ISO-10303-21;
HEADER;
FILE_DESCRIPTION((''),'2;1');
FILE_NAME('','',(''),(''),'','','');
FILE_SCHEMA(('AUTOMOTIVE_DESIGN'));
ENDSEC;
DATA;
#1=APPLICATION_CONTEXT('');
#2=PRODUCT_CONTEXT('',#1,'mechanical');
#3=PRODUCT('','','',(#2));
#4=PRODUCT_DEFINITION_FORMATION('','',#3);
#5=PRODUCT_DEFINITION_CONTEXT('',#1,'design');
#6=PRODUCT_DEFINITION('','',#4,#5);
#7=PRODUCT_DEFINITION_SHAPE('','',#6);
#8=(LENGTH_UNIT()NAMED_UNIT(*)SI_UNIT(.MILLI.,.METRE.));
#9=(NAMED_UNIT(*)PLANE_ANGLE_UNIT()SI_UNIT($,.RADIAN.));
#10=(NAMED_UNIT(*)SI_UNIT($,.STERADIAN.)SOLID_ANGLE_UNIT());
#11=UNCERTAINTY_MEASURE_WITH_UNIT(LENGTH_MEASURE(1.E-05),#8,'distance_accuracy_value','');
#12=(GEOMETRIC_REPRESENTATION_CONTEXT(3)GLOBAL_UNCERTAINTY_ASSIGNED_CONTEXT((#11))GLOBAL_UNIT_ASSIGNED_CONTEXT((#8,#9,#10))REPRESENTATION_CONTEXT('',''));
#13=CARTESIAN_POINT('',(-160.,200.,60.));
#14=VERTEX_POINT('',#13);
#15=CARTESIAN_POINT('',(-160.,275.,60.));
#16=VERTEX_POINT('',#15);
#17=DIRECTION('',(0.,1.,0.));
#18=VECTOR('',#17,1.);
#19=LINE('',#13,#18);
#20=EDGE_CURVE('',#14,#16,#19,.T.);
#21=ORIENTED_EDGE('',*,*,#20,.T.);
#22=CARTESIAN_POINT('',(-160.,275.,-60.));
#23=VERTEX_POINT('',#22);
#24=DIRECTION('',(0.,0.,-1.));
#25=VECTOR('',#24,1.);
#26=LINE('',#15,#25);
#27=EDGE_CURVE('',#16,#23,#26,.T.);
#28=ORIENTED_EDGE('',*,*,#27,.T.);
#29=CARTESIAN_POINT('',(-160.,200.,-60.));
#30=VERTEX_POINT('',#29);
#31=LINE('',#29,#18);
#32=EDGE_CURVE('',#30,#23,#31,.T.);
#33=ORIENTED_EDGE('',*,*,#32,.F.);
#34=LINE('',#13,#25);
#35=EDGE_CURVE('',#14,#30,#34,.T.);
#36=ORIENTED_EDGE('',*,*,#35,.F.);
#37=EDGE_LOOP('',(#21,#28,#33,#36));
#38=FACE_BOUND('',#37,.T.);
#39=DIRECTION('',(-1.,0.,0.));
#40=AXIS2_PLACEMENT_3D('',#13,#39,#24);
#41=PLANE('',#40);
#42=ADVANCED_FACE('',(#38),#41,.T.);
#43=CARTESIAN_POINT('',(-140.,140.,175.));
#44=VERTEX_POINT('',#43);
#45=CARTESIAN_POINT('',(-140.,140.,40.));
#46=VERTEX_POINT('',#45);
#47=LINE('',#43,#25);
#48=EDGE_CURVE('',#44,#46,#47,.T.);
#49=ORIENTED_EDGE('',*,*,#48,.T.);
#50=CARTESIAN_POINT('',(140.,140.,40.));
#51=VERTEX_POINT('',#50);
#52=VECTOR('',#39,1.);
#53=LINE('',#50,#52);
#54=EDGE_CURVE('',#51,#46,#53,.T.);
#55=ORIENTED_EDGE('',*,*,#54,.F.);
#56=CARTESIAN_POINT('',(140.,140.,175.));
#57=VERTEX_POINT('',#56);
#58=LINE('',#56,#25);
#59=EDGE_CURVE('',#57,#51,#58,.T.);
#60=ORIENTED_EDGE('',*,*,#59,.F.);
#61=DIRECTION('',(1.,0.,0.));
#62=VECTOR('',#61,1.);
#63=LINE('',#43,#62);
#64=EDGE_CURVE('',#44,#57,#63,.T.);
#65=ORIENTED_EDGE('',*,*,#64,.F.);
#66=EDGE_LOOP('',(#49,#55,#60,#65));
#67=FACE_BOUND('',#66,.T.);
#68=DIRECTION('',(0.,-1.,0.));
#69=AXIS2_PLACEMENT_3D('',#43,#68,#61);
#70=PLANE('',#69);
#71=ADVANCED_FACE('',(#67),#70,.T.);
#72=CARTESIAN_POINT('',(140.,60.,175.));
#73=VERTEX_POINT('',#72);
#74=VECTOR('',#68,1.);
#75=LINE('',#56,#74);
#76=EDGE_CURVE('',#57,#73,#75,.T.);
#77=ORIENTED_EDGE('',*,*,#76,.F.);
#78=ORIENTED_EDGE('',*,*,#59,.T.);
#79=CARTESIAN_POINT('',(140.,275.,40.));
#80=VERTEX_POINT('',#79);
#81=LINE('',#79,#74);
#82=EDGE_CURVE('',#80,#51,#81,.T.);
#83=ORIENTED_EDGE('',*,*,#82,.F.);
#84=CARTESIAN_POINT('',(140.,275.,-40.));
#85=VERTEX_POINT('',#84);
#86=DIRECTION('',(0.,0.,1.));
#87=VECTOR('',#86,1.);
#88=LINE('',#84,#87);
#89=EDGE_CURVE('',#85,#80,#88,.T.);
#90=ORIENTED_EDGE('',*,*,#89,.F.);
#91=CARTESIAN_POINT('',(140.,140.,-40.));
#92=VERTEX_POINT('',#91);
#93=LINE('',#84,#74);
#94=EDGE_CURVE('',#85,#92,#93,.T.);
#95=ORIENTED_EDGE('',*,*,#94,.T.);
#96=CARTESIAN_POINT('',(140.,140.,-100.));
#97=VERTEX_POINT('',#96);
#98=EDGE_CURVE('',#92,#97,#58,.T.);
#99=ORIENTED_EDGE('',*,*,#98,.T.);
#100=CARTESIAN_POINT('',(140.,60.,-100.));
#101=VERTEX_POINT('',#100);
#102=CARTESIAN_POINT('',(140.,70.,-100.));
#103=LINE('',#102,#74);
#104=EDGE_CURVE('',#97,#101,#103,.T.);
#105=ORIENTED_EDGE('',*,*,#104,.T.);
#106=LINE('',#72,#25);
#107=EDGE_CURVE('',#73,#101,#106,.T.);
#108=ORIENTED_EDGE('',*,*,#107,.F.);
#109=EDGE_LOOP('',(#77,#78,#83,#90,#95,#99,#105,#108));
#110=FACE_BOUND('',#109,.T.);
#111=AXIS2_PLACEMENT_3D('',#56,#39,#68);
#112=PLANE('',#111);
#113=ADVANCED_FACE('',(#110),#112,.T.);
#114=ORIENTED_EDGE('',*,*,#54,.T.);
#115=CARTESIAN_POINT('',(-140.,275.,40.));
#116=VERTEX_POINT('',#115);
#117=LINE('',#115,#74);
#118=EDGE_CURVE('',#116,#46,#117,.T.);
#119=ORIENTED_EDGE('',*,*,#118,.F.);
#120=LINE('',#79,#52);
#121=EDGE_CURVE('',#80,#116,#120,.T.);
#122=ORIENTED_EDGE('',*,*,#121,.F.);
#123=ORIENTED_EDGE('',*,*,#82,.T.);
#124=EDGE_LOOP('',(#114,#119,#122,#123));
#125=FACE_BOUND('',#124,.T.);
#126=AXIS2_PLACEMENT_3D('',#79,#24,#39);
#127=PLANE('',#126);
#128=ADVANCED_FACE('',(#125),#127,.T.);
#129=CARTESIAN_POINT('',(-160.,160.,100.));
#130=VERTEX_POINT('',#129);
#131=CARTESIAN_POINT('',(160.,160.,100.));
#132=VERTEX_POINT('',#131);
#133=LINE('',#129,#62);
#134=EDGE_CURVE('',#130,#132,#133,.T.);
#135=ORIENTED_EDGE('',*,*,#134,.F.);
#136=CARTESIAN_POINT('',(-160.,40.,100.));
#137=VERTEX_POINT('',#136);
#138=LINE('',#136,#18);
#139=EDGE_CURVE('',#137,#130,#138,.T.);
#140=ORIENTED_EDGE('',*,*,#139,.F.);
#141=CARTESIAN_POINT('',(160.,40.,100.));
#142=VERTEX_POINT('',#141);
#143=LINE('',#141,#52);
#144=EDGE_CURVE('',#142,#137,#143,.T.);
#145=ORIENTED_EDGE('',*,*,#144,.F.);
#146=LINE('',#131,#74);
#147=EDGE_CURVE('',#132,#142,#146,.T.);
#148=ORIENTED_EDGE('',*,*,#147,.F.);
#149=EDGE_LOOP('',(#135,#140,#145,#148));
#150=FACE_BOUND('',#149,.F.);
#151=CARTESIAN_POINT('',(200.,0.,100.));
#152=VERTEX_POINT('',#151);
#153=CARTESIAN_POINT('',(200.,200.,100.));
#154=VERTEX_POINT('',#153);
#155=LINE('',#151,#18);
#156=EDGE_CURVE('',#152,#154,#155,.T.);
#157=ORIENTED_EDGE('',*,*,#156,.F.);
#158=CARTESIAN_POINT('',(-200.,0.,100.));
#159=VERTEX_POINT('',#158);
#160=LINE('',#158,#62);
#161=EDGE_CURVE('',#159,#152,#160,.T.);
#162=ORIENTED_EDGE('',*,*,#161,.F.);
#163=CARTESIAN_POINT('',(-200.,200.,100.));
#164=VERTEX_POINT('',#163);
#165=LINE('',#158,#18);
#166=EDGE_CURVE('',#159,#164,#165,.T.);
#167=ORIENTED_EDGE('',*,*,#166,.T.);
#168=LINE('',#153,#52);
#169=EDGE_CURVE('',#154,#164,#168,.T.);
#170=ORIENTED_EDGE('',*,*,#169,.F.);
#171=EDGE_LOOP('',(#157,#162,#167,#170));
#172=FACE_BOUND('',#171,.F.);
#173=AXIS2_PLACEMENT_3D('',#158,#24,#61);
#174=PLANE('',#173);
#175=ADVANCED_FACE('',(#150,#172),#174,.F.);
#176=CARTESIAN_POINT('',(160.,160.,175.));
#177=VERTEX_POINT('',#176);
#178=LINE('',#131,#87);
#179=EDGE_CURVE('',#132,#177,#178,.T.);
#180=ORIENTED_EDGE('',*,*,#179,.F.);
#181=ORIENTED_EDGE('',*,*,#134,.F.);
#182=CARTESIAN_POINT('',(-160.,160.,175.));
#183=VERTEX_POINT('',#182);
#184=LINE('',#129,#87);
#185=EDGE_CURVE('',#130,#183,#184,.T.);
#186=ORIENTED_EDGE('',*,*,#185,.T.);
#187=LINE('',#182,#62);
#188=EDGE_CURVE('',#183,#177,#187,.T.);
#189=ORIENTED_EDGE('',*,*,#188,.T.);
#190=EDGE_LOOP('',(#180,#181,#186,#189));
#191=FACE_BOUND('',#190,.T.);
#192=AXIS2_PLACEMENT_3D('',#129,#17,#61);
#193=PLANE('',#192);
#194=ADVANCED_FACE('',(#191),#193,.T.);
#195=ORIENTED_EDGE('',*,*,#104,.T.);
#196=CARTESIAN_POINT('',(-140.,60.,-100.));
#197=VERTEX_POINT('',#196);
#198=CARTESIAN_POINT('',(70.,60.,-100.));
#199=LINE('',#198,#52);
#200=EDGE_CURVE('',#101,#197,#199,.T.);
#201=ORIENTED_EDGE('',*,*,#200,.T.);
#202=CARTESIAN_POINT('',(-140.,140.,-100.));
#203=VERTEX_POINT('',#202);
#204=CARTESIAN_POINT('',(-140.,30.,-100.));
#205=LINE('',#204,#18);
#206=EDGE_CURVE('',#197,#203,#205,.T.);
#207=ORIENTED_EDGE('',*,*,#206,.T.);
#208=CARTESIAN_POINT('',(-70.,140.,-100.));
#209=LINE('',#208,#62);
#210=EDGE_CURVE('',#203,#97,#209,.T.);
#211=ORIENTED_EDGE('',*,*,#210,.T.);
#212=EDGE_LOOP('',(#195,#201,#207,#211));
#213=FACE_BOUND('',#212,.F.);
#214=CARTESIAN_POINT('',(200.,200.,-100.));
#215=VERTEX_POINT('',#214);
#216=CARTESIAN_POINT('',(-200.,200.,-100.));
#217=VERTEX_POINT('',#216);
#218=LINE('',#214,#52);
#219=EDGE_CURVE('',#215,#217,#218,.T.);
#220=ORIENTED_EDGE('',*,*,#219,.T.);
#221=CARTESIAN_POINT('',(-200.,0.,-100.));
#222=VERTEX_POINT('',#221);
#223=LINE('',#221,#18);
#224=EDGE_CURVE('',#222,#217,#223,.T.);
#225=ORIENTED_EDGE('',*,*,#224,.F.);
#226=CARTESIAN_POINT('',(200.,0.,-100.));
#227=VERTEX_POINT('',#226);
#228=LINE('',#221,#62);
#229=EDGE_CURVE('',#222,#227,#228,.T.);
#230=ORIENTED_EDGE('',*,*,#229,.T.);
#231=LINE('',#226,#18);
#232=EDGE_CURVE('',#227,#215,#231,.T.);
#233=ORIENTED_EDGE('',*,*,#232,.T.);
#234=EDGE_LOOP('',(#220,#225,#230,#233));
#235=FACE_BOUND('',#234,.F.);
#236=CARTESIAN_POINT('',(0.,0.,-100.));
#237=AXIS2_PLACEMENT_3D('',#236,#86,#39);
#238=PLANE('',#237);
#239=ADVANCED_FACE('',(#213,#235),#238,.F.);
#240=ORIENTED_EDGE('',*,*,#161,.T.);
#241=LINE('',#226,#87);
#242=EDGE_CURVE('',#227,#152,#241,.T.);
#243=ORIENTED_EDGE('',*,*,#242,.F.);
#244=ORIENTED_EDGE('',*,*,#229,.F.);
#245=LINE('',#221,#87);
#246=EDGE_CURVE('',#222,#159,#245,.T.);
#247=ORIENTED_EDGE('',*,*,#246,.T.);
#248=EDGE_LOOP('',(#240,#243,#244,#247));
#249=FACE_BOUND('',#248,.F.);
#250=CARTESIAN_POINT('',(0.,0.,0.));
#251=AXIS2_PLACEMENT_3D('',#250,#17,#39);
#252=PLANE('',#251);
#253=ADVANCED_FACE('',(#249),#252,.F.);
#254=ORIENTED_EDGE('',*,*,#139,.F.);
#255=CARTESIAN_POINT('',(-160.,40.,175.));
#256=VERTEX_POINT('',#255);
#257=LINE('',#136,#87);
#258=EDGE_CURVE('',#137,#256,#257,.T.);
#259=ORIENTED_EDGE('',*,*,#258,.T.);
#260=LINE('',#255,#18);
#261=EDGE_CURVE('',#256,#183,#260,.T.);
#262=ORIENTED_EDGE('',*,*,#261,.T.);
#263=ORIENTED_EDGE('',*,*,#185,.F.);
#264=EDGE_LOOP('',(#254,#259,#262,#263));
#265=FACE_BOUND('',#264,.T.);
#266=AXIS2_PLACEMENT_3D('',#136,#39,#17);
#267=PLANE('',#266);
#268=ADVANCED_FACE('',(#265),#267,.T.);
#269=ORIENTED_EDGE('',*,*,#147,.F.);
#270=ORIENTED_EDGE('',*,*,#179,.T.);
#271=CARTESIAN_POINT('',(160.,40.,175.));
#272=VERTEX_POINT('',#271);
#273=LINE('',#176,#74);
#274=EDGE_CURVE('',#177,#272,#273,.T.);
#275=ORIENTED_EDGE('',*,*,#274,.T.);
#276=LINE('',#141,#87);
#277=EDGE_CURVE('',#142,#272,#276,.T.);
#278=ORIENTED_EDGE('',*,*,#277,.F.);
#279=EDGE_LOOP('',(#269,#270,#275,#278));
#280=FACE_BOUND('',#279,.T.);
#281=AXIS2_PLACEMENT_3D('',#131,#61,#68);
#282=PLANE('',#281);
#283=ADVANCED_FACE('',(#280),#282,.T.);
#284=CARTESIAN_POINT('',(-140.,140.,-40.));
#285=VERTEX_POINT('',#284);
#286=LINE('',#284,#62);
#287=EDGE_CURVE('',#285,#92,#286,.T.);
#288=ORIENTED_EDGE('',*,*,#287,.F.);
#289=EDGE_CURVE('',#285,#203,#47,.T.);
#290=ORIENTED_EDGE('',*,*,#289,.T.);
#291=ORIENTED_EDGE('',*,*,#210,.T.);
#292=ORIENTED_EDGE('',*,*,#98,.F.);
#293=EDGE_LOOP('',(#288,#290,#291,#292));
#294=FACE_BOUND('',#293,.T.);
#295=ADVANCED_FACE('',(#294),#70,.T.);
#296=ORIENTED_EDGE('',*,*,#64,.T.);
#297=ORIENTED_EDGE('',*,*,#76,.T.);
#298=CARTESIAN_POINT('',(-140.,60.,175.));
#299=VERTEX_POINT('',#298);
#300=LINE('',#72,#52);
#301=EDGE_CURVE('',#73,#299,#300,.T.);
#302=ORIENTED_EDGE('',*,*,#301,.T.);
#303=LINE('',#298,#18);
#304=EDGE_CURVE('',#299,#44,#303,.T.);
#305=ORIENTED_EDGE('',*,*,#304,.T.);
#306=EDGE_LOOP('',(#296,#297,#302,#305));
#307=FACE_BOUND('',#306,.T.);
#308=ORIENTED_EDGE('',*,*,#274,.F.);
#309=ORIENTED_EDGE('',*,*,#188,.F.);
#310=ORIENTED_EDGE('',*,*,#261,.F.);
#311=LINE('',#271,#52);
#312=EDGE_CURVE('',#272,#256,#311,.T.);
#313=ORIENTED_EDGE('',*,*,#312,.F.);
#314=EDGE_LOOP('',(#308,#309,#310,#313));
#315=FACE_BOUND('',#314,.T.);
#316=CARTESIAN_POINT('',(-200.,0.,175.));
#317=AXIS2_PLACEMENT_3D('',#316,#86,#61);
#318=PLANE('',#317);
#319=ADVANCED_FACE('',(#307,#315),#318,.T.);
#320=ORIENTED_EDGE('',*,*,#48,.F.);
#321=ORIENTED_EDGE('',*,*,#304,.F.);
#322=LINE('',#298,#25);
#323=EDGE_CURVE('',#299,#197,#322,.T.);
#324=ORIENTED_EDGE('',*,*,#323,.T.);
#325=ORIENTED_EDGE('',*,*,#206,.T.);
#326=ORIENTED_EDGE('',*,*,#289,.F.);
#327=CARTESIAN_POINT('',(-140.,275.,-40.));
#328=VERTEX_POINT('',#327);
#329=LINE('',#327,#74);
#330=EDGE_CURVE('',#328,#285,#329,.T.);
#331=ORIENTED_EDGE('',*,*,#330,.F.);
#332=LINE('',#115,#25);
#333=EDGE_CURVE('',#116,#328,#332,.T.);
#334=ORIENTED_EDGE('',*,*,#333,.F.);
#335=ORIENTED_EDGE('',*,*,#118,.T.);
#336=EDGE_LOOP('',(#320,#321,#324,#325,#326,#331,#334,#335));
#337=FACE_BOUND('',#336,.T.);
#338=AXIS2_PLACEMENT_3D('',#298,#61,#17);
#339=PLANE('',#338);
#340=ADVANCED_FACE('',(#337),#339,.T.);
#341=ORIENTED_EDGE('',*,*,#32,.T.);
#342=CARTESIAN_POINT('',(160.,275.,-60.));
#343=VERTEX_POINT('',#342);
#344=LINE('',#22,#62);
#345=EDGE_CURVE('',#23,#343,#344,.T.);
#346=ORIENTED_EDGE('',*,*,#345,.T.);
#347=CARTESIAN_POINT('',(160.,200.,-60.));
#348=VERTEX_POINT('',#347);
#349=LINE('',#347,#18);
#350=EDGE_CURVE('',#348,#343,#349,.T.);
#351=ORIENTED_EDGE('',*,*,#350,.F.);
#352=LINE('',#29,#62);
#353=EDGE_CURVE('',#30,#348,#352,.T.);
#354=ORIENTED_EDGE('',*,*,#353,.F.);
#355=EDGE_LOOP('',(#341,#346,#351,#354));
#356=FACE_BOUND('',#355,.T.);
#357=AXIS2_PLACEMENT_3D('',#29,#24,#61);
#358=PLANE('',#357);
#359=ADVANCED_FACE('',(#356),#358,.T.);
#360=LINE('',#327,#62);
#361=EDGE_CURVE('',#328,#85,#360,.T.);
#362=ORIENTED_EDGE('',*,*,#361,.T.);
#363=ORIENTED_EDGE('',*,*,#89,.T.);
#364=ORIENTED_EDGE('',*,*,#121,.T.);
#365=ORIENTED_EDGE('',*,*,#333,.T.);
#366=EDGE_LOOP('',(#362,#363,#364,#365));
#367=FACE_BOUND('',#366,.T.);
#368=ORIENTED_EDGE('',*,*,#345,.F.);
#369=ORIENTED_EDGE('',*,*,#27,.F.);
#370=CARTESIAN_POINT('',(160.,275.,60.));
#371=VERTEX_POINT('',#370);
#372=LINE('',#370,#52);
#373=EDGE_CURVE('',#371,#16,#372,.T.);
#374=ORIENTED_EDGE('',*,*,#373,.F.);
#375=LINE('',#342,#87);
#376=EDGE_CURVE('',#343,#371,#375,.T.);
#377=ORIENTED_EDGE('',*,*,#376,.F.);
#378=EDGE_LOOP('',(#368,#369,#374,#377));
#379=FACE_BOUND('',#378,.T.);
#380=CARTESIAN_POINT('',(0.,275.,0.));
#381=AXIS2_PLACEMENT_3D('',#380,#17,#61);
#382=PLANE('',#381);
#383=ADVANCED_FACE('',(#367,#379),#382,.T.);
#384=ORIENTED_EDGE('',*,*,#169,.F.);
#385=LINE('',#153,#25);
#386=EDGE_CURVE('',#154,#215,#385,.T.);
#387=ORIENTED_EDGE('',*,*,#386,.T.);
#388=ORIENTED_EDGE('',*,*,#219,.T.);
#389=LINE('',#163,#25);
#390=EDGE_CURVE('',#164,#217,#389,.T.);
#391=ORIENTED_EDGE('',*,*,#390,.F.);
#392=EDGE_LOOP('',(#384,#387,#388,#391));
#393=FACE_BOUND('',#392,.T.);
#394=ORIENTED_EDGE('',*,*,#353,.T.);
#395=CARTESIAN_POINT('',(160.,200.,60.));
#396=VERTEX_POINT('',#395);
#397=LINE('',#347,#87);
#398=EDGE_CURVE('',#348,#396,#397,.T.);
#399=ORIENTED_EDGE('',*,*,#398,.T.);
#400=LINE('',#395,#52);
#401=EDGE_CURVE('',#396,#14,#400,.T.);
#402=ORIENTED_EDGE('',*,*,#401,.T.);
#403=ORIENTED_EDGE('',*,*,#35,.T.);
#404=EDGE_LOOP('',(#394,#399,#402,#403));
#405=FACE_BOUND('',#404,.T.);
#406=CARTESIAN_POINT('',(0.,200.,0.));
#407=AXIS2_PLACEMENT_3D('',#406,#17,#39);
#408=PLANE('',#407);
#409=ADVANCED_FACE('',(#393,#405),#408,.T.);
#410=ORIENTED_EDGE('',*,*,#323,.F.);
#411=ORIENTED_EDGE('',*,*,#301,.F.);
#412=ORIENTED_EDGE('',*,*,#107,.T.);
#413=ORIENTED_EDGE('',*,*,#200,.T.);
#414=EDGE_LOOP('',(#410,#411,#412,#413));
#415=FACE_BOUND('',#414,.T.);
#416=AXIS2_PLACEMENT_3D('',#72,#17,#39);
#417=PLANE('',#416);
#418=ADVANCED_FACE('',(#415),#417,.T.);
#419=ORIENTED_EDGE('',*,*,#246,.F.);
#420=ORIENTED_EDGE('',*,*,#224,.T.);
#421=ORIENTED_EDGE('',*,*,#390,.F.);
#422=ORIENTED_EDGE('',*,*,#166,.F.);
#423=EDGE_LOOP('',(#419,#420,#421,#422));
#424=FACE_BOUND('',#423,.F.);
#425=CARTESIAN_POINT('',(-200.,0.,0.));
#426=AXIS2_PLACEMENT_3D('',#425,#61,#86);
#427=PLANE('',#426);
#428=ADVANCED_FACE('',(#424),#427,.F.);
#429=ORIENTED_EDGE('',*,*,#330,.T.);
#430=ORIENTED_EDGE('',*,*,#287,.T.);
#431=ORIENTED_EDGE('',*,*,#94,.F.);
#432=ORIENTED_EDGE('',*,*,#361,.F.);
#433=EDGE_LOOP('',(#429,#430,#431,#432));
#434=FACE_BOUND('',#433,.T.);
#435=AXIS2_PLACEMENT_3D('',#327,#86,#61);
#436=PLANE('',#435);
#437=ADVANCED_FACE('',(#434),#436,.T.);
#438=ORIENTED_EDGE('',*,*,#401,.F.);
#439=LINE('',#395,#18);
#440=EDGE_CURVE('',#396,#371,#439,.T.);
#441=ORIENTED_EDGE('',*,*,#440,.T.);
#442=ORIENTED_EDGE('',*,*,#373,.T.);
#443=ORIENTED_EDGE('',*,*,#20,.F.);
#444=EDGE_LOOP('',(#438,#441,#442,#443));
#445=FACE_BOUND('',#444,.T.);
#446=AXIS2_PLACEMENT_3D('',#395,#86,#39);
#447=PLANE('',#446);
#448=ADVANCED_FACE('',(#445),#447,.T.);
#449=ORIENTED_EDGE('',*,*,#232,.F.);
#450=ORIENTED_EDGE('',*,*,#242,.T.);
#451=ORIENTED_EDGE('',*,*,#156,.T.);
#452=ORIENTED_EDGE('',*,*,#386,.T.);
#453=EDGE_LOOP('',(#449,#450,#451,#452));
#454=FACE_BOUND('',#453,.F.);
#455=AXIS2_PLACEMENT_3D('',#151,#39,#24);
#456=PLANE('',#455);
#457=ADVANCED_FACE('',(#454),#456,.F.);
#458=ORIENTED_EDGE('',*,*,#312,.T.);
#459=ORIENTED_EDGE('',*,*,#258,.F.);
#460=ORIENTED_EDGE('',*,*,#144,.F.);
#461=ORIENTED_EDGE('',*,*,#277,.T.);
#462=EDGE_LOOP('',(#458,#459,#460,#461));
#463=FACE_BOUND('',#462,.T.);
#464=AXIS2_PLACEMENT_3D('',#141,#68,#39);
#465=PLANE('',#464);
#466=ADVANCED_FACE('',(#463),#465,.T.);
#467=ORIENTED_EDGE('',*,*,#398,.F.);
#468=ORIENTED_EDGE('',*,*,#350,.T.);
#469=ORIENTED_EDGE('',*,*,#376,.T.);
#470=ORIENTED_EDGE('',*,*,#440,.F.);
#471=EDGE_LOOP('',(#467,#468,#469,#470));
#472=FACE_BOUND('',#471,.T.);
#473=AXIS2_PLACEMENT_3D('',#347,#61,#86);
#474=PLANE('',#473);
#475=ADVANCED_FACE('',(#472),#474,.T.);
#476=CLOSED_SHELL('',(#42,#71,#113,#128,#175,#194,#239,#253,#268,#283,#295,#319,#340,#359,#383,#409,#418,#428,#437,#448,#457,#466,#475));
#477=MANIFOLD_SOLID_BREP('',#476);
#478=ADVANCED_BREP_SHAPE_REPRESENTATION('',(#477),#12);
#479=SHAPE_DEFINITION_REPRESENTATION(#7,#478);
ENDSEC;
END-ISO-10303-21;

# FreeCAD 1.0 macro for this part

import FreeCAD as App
import Part
import Sketcher

V = App.Vector
Q = App.Units.Quantity


def add_polygon(sketch, points):
    """Adds a closed chain of lines whose ends are joined by coincident constraints."""
    first, n = sketch.GeometryCount, len(points)
    for a, b in zip(points, points[1:] + points[:1]):
        sketch.addGeometry(Part.LineSegment(App.Vector(*a, 0), App.Vector(*b, 0)), False)
    for i in range(n):
        sketch.addConstraint(Sketcher.Constraint("Coincident", first + i, 2, first + (i + 1) % n, 1))

doc = App.newDocument("Part")
body = doc.addObject("PartDesign::Body", "Body")

sketch1 = doc.addObject("Sketcher::SketchObject", "Sketch")
body.addObject(sketch1)
sketch1.AttachmentSupport = (doc.XZ_Plane, [""])
sketch1.MapMode = "FlatFace"
add_polygon(sketch1, [(-200, 100), (200, 100), (200, -100), (-200, -100)])
sketch1.addConstraint([
    Sketcher.Constraint("Horizontal", 0),
    Sketcher.Constraint("Vertical", 1),
    Sketcher.Constraint("Horizontal", 2),
    Sketcher.Constraint("Vertical", 3),
    Sketcher.Constraint("Symmetric", 0, 2, 2, 2, -1, 1),
    Sketcher.Constraint("DistanceX", 0, 1, 0, 2, Q("400 mm")),
    Sketcher.Constraint("DistanceY", 1, 2, 1, 1, Q("200 mm")),
])
pad1 = doc.addObject("PartDesign::Pad", "Pad")
body.addObject(pad1)
pad1.Profile = sketch1
pad1.Length = 200
pad1.Reversed = True

sketch2 = doc.addObject("Sketcher::SketchObject", "Sketch001")
body.addObject(sketch2)
sketch2.AttachmentSupport = (doc.XY_Plane, [""])
sketch2.MapMode = "FlatFace"
sketch2.AttachmentOffset = App.Placement(V(0, 0, 100), App.Rotation())
add_polygon(sketch2, [(160, 40), (160, 160), (-160, 160), (-160, 40)])
sketch2.addConstraint([
    Sketcher.Constraint("Vertical", 0),
    Sketcher.Constraint("Horizontal", 1),
    Sketcher.Constraint("Vertical", 2),
    Sketcher.Constraint("Horizontal", 3),
    Sketcher.Constraint("DistanceY", -1, 1, 2, 2, Q("40 mm")),
    Sketcher.Constraint("DistanceX", 1, 2, 1, 1, Q("320 mm")),
    Sketcher.Constraint("DistanceY", 0, 1, 0, 2, Q("120 mm")),
    Sketcher.Constraint("DistanceX", -1, 1, 0, 2, Q("160 mm")),
])
pad2 = doc.addObject("PartDesign::Pad", "Pad001")
body.addObject(pad2)
pad2.Profile = sketch2
pad2.Length = 75

sketch3 = doc.addObject("Sketcher::SketchObject", "Sketch002")
body.addObject(sketch3)
sketch3.AttachmentSupport = (doc.XY_Plane, [""])
sketch3.MapMode = "FlatFace"
sketch3.AttachmentOffset = App.Placement(V(0, 0, 175), App.Rotation())
add_polygon(sketch3, [(140, 140), (-140, 140), (-140, 60), (140, 60)])
sketch3.addConstraint([
    Sketcher.Constraint("Horizontal", 0),
    Sketcher.Constraint("Vertical", 1),
    Sketcher.Constraint("Horizontal", 2),
    Sketcher.Constraint("Vertical", 3),
    Sketcher.Constraint("DistanceX", 0, 2, 0, 1, Q("280 mm")),
    Sketcher.Constraint("DistanceY", 1, 2, 1, 1, Q("80 mm")),
    Sketcher.Constraint("DistanceX", 0, 2, -1, 1, Q("140 mm")),
    Sketcher.Constraint("DistanceY", -1, 1, 0, 2, Q("140 mm")),
])
pocket1 = doc.addObject("PartDesign::Pocket", "Pocket")
body.addObject(pocket1)
pocket1.Profile = sketch3
pocket1.Type = "ThroughAll"

sketch4 = doc.addObject("Sketcher::SketchObject", "Sketch003")
body.addObject(sketch4)
sketch4.AttachmentSupport = (doc.XZ_Plane, [""])
sketch4.MapMode = "FlatFace"
sketch4.AttachmentOffset = App.Placement(V(0, 0, -200), App.Rotation())
add_polygon(sketch4, [(160, -60), (-160, -60), (-160, 60), (160, 60)])
sketch4.addConstraint([
    Sketcher.Constraint("Horizontal", 0),
    Sketcher.Constraint("Vertical", 1),
    Sketcher.Constraint("Horizontal", 2),
    Sketcher.Constraint("Vertical", 3),
    Sketcher.Constraint("Symmetric", 0, 2, 2, 2, -1, 1),
    Sketcher.Constraint("DistanceX", 0, 2, 0, 1, Q("320 mm")),
    Sketcher.Constraint("DistanceY", 1, 1, 1, 2, Q("120 mm")),
])
pad3 = doc.addObject("PartDesign::Pad", "Pad002")
body.addObject(pad3)
pad3.Profile = sketch4
pad3.Length = 75
pad3.Reversed = True

sketch5 = doc.addObject("Sketcher::SketchObject", "Sketch004")
body.addObject(sketch5)
sketch5.AttachmentSupport = (doc.XZ_Plane, [""])
sketch5.MapMode = "FlatFace"
sketch5.AttachmentOffset = App.Placement(V(0, 0, -275), App.Rotation())
add_polygon(sketch5, [(140, -40), (-140, -40), (-140, 40), (140, 40)])
sketch5.addConstraint([
    Sketcher.Constraint("Horizontal", 0),
    Sketcher.Constraint("Vertical", 1),
    Sketcher.Constraint("Horizontal", 2),
    Sketcher.Constraint("Vertical", 3),
    Sketcher.Constraint("Symmetric", 0, 2, 2, 2, -1, 1),
    Sketcher.Constraint("DistanceX", 0, 2, 0, 1, Q("280 mm")),
    Sketcher.Constraint("DistanceY", 1, 1, 1, 2, Q("80 mm")),
])
pocket2 = doc.addObject("PartDesign::Pocket", "Pocket001")
body.addObject(pocket2)
pocket2.Profile = sketch5
pocket2.Length = 135
pocket2.Reversed = True

doc.recompute()
